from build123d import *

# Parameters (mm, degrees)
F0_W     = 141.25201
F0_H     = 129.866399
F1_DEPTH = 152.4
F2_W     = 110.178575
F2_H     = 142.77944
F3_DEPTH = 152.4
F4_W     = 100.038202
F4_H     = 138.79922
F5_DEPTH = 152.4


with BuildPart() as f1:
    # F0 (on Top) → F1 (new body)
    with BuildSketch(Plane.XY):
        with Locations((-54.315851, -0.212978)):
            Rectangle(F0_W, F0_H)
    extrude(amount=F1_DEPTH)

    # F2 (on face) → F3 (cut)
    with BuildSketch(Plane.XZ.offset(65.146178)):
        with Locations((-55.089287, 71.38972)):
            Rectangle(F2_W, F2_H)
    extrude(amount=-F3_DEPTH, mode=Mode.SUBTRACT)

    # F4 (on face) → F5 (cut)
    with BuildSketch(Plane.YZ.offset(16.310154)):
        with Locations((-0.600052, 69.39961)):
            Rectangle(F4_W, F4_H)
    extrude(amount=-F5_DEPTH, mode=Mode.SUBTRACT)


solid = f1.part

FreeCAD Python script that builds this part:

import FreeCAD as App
import Part
import Sketcher
Q = App.Units.Quantity


def add_polygon(sketch, points):
    """Adds a closed chain of lines whose ends are joined by coincident constraints."""
    first, n = sketch.GeometryCount, len(points)
    for a, b in zip(points, points[1:] + points[:1]):
        sketch.addGeometry(Part.LineSegment(App.Vector(*a, 0), App.Vector(*b, 0)), False)
    for i in range(n):
        sketch.addConstraint(Sketcher.Constraint("Coincident", first + i, 2, first + (i + 1) % n, 1))

doc = App.newDocument("Part")
body = doc.addObject("PartDesign::Body", "Body")

# Sketch on XY plane
sketch1 = body.newObject("Sketcher::SketchObject", "Sketch")
sketch1.AttachmentSupport = (doc.getObject("XY_Plane"), [""])
sketch1.MapMode = "FlatFace"
add_polygon(sketch1, [(-124.941856, 64.720221), (-124.941856, -65.146177), (16.310154, -65.146177), (16.310154, 64.720221)])  # lines 0-3
sketch1.addConstraint(Sketcher.Constraint("Vertical", 0))
sketch1.addConstraint(Sketcher.Constraint("Horizontal", 1))
sketch1.addConstraint(Sketcher.Constraint("Vertical", 2))
sketch1.addConstraint(Sketcher.Constraint("Horizontal", 3))
sketch1.addConstraint(Sketcher.Constraint("DistanceY", 0, 2, 0, 1, Q("129.866399 mm")))
sketch1.addConstraint(Sketcher.Constraint("DistanceX", 1, 1, 1, 2, Q("141.25201 mm")))
sketch1.addConstraint(Sketcher.Constraint("DistanceY", -1, 1, 2, 2, Q("64.720221 mm")))
sketch1.addConstraint(Sketcher.Constraint("DistanceX", 0, 2, -1, 1, Q("124.941856 mm")))
pad1 = body.newObject("PartDesign::Pad", "Pad")
pad1.Profile = sketch1
pad1.Length = Q("6 in")

# Sketch on XZ plane
sketch2 = body.newObject("Sketcher::SketchObject", "Sketch001")
sketch2.AttachmentSupport = (doc.getObject("XZ_Plane"), [""])
sketch2.MapMode = "FlatFace"
sketch2.AttachmentOffset = App.Placement(App.Vector(0, 0, 65.146178), App.Rotation())
add_polygon(sketch2, [(-110.178574, 142.77944), (-110.178574, 0), (0, 0), (0, 142.77944)])  # lines 0-3
sketch2.addConstraint(Sketcher.Constraint("Vertical", 0))
sketch2.addConstraint(Sketcher.Constraint("Horizontal", 1))
sketch2.addConstraint(Sketcher.Constraint("Vertical", 2))
sketch2.addConstraint(Sketcher.Constraint("Horizontal", 3))
sketch2.addConstraint(Sketcher.Constraint("Coincident", 1, 2, -1, 1))
sketch2.addConstraint(Sketcher.Constraint("DistanceY", 0, 2, 0, 1, Q("142.77944 mm")))
sketch2.addConstraint(Sketcher.Constraint("DistanceX", 1, 1, 1, 2, Q("110.178575 mm")))
pocket1 = body.newObject("PartDesign::Pocket", "Pocket")
pocket1.Profile = sketch2
pocket1.Length = Q("6 in")

# Sketch on YZ plane
sketch3 = body.newObject("Sketcher::SketchObject", "Sketch002")
sketch3.AttachmentSupport = (doc.getObject("YZ_Plane"), [""])
sketch3.MapMode = "FlatFace"
sketch3.AttachmentOffset = App.Placement(App.Vector(0, 0, 16.310154), App.Rotation())
add_polygon(sketch3, [(-50.619153, 138.79922), (-50.619153, 0), (49.419049, 0), (49.419049, 138.79922)])  # lines 0-3
sketch3.addConstraint(Sketcher.Constraint("Vertical", 0))
sketch3.addConstraint(Sketcher.Constraint("Horizontal", 1))
sketch3.addConstraint(Sketcher.Constraint("Vertical", 2))
sketch3.addConstraint(Sketcher.Constraint("Horizontal", 3))
sketch3.addConstraint(Sketcher.Constraint("PointOnObject", 0, 2, -1))
sketch3.addConstraint(Sketcher.Constraint("DistanceX", 1, 1, 1, 2, Q("100.038202 mm")))
sketch3.addConstraint(Sketcher.Constraint("DistanceY", 0, 2, 0, 1, Q("138.79922 mm")))
sketch3.addConstraint(Sketcher.Constraint("DistanceX", -1, 1, 1, 2, Q("49.419049 mm")))
pocket2 = body.newObject("PartDesign::Pocket", "Pocket001")
pocket2.Profile = sketch3
pocket2.Length = Q("6 in")

doc.recompute()
